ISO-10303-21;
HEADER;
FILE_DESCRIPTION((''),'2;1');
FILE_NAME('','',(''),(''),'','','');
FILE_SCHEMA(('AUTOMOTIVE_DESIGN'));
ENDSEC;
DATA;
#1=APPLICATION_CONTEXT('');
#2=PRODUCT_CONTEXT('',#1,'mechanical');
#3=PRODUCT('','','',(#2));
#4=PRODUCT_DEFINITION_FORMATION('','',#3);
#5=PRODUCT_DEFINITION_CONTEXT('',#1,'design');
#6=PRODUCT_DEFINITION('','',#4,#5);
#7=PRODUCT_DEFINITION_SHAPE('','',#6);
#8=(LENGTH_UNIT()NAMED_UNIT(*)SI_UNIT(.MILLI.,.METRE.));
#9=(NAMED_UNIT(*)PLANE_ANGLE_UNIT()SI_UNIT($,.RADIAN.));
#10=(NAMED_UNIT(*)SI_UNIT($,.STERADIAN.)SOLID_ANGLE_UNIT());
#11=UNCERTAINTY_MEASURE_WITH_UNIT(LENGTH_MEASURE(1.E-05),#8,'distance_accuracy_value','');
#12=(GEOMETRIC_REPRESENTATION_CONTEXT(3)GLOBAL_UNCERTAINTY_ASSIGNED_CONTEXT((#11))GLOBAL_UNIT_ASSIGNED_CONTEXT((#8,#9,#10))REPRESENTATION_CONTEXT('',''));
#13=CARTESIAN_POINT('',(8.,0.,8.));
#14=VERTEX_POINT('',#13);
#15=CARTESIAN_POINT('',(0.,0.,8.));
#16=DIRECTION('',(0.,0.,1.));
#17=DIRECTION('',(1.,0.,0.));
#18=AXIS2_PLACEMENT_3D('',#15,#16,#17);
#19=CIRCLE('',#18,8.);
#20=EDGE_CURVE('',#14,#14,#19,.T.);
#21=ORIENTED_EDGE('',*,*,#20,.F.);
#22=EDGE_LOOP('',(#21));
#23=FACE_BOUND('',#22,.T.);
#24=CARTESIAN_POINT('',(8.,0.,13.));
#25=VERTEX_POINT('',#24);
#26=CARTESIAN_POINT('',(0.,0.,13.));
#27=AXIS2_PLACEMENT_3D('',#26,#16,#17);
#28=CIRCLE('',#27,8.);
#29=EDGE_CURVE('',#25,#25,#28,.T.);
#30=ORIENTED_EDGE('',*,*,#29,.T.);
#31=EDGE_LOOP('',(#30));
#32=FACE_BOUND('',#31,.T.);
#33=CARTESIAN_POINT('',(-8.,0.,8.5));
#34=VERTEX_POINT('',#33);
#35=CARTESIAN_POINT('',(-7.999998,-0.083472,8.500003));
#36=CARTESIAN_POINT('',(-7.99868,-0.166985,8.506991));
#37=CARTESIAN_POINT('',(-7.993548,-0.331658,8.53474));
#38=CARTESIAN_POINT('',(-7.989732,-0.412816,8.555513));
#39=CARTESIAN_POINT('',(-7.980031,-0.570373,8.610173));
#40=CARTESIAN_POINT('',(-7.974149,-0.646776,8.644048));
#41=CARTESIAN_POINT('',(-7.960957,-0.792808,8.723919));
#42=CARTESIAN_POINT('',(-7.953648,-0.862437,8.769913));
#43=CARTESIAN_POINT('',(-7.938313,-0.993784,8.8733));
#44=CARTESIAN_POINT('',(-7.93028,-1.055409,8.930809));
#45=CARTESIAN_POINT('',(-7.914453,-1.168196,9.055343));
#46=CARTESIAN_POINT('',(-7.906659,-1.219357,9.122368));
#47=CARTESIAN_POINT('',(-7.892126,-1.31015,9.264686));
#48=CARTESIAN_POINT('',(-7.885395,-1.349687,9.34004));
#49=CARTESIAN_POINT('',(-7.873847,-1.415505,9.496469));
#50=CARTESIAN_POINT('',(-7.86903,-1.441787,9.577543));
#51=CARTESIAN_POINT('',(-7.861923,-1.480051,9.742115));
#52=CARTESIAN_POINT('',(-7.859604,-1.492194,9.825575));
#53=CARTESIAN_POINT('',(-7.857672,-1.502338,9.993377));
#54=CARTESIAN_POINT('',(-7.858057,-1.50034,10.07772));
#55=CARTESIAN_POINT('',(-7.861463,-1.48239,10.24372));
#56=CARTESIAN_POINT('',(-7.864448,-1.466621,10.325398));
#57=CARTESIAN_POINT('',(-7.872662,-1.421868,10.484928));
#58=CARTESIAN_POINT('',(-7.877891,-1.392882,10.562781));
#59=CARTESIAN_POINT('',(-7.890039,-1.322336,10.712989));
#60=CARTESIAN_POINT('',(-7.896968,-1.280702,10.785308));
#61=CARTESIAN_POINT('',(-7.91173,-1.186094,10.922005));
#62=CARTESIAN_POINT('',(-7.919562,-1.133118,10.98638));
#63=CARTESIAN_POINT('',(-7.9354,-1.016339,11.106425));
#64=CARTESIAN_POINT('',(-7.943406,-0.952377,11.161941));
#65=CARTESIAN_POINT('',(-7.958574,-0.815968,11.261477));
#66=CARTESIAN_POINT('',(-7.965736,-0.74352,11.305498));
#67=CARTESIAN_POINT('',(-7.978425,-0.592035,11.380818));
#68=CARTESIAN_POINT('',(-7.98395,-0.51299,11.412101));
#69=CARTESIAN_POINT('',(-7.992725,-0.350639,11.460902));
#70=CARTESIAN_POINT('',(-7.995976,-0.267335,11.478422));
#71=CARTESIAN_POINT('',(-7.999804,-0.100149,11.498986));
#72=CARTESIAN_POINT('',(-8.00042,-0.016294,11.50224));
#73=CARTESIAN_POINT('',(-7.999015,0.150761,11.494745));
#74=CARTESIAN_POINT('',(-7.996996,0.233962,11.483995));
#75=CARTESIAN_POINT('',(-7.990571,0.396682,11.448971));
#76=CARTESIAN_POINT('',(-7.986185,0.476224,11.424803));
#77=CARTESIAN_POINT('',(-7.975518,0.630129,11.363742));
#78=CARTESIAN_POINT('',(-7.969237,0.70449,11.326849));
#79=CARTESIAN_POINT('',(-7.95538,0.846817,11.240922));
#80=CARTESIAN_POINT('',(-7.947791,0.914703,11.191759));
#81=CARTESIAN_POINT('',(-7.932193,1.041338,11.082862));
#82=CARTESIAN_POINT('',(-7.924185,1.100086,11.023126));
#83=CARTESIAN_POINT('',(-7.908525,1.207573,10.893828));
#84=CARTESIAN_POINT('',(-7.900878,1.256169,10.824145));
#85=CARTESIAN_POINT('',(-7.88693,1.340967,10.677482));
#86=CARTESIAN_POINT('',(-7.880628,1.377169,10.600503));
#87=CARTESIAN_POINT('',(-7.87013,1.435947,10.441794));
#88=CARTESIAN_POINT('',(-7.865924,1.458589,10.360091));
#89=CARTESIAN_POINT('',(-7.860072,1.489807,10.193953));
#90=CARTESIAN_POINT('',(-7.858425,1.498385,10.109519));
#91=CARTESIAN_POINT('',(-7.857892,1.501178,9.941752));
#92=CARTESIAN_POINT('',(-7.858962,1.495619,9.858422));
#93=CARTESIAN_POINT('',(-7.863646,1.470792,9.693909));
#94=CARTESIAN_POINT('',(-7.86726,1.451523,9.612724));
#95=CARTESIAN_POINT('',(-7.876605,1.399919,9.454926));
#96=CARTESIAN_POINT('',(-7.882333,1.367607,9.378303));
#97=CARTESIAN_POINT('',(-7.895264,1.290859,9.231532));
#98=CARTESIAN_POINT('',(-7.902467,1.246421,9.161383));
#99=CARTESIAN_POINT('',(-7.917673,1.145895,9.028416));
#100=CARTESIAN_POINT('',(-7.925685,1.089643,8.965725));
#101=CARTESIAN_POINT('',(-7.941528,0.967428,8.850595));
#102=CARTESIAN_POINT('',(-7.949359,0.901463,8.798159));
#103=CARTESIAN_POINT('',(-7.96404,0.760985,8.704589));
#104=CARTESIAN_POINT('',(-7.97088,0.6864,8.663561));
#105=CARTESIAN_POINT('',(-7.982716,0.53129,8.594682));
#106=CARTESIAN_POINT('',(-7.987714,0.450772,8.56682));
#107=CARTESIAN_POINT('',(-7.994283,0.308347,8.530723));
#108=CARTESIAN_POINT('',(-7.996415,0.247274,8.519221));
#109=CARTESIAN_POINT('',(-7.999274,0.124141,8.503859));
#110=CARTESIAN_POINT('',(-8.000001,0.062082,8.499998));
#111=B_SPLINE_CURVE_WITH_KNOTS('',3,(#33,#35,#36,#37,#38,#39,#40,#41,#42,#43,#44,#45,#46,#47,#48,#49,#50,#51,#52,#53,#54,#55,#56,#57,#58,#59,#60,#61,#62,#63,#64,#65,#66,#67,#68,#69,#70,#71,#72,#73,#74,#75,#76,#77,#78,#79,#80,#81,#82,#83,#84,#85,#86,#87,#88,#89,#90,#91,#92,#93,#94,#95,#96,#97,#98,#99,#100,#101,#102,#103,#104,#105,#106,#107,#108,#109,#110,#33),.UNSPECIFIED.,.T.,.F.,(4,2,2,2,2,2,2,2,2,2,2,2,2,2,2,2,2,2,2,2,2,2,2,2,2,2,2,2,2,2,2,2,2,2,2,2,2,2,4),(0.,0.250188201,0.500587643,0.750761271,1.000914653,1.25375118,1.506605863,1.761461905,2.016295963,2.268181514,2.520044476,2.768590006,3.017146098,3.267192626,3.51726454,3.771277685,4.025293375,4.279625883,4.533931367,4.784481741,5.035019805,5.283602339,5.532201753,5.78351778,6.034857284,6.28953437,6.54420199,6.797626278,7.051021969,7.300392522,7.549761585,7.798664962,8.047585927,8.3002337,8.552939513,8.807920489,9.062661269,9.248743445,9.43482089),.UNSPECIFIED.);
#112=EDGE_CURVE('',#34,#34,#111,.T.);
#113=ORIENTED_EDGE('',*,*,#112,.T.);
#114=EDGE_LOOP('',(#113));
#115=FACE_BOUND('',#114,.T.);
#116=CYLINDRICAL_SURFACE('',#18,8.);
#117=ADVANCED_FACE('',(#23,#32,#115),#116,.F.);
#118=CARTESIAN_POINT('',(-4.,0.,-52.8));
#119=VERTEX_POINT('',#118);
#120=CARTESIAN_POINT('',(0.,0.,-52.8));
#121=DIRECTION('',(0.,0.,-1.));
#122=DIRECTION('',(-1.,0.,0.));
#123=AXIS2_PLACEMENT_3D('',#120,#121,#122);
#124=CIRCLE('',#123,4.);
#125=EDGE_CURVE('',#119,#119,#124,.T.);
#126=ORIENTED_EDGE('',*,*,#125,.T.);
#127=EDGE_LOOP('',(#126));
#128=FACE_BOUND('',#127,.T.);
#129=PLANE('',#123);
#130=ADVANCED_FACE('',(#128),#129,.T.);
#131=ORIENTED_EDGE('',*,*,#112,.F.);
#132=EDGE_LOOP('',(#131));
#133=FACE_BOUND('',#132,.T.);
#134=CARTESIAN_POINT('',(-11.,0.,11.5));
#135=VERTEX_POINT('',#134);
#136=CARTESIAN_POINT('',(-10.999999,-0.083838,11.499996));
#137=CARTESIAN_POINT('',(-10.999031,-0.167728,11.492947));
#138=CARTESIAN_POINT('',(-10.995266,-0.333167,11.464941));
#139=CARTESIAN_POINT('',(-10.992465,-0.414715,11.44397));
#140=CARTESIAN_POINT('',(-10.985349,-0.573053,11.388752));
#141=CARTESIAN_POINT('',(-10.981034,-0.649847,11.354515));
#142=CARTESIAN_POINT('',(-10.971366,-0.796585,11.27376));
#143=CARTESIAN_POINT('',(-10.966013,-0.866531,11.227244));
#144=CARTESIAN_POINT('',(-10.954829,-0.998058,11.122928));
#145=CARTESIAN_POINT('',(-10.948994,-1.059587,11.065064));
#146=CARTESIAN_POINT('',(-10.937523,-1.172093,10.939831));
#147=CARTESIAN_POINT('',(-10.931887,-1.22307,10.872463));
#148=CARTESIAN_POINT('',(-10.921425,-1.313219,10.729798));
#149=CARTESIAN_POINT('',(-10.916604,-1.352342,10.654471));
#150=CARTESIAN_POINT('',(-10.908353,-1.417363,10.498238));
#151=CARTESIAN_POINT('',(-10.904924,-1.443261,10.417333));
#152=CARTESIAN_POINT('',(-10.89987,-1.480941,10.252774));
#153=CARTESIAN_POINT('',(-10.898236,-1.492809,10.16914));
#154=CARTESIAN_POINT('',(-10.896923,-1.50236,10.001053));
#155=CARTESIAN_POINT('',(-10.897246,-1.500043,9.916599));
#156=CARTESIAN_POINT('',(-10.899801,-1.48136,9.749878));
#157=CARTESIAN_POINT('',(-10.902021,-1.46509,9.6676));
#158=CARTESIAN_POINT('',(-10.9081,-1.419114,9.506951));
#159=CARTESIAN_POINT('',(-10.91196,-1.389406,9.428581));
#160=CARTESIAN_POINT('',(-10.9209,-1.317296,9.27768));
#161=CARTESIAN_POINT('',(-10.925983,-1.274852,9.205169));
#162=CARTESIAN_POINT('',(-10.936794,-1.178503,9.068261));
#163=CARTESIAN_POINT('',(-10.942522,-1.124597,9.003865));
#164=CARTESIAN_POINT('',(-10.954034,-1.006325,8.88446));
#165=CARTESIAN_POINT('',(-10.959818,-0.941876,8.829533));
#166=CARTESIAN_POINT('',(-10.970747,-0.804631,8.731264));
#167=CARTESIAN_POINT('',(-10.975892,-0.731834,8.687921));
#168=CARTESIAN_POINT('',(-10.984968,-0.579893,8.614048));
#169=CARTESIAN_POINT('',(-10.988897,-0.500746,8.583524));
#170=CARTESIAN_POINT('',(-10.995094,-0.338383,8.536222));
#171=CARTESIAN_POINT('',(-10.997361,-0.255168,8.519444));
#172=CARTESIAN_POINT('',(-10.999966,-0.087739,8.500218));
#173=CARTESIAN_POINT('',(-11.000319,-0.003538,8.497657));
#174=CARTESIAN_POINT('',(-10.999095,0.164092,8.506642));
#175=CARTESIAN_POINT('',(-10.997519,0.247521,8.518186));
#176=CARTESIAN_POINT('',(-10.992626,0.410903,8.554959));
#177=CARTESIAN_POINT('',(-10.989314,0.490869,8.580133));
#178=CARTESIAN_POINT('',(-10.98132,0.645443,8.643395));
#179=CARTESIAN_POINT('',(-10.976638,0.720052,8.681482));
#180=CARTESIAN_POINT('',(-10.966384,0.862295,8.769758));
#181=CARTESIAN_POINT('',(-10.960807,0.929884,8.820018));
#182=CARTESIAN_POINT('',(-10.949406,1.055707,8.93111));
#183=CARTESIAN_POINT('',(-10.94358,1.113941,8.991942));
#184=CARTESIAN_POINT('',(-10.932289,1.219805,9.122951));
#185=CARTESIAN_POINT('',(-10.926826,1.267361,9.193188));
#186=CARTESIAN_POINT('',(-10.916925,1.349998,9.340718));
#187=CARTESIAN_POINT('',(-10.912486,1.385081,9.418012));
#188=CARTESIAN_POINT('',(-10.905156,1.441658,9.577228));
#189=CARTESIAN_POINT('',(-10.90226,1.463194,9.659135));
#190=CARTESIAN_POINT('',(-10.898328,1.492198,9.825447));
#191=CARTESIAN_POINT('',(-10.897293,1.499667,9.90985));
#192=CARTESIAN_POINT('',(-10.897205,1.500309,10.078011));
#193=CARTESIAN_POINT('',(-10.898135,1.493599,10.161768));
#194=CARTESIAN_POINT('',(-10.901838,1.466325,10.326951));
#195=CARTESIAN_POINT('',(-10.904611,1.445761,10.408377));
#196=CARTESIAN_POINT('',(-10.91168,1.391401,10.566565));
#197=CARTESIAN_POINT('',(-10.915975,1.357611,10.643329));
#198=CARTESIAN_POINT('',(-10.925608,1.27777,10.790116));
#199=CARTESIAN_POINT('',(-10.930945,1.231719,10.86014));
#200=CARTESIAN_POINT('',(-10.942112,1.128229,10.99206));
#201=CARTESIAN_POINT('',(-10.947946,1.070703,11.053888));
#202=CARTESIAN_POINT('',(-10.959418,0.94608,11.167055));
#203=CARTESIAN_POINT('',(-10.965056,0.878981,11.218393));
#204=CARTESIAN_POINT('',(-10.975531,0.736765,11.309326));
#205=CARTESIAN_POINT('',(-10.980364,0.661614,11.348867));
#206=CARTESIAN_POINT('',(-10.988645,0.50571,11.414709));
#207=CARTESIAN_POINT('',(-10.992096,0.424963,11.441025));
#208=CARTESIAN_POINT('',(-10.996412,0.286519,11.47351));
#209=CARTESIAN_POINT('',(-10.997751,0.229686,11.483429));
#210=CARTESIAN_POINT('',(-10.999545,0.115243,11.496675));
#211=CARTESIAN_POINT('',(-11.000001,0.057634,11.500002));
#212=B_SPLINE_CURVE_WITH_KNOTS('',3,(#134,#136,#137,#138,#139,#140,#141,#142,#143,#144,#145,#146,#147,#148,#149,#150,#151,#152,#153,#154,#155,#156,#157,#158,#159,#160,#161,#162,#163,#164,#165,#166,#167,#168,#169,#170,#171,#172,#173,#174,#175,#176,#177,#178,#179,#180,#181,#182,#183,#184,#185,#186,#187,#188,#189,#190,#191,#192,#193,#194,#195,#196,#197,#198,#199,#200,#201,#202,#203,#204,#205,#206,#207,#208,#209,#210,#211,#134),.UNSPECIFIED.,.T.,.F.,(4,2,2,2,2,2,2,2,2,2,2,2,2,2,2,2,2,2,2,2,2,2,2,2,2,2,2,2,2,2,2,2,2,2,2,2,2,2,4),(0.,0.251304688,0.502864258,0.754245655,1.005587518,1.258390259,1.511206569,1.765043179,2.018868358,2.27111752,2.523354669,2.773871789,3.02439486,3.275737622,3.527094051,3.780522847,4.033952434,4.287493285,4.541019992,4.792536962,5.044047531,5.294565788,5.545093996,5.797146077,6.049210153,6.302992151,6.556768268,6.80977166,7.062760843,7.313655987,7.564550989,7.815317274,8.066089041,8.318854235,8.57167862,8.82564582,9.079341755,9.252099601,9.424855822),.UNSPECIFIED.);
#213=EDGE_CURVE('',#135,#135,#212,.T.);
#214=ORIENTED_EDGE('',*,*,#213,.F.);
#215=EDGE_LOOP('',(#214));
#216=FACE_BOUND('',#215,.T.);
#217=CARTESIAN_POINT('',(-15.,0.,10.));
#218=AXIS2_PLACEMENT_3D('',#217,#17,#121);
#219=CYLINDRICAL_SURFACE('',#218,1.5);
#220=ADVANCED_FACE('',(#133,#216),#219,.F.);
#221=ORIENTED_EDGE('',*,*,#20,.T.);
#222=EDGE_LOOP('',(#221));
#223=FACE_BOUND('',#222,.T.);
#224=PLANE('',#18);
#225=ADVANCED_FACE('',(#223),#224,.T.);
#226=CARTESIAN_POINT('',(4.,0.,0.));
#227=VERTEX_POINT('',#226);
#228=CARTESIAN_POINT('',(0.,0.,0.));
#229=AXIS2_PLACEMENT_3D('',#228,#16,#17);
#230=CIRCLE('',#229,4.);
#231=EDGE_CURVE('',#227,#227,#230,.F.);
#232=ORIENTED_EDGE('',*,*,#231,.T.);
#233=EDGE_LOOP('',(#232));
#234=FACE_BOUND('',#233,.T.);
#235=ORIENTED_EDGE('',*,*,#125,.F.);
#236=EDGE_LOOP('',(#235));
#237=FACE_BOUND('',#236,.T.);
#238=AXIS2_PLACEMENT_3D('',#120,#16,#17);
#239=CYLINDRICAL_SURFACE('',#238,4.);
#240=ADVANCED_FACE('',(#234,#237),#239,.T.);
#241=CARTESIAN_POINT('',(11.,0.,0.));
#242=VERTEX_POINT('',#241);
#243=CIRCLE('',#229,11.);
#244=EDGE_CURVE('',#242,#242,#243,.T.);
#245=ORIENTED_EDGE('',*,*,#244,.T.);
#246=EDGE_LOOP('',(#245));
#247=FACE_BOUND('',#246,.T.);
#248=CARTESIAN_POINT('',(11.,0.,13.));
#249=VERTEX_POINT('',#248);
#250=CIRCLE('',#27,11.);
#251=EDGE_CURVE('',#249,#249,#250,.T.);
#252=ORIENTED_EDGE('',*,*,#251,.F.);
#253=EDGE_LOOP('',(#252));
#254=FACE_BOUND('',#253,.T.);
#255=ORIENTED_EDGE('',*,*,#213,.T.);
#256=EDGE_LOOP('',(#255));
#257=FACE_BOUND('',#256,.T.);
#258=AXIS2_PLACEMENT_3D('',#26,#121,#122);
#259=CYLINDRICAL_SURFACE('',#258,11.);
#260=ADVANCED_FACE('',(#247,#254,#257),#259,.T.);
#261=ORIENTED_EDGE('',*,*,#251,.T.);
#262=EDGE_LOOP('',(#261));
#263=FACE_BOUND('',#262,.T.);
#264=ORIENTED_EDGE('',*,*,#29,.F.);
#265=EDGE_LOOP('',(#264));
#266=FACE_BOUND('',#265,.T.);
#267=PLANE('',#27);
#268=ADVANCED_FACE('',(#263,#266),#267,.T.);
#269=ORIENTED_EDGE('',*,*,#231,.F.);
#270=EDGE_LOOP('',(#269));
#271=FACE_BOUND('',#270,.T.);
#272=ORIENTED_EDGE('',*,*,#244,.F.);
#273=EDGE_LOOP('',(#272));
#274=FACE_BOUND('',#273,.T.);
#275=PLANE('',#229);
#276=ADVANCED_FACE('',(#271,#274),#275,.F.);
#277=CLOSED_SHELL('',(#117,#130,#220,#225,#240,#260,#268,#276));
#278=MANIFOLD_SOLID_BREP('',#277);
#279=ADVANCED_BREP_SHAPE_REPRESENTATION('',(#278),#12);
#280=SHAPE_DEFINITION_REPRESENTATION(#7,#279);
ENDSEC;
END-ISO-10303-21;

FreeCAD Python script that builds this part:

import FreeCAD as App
import Part
import Sketcher
from FreeCAD import Vector
Q = App.Units.Quantity

doc = App.newDocument("Part")
params = doc.addObject("Spreadsheet::Sheet", "Params")
for row, (alias, value) in enumerate([
    ("sketch1_diameter", "22 mm"),
    ("pad1_length", "13 mm"),
    ("sketch2_diameter", "16 mm"),
    ("pocket1_length", "5 mm"),
    ("sketch3_diameter", "3 mm"),
    ("pocket2_length", "15 mm"),
    ("sketch4_diameter", "8 mm"),
    ("pad2_length", "52.8 mm"),
], start=1):
    params.set(f"A{row}", alias)
    params.set(f"B{row}", "=" + value)
    params.setAlias(f"B{row}", alias)

body = doc.addObject("PartDesign::Body", "Body")

# Sketch on XY plane
sketch1 = body.newObject("Sketcher::SketchObject", "Sketch")
sketch1.AttachmentSupport = (doc.getObject("XY_Plane"), [""])
sketch1.MapMode = "FlatFace"
sketch1.addGeometry(Part.Circle(Vector(0, 0, 0), Vector(0, 0, 1), 11), False)
sketch1.addConstraint(Sketcher.Constraint("Coincident", 0, 3, -1, 1))
sketch1.addConstraint(Sketcher.Constraint("Diameter", 0, Q("22 mm")))
sketch1.setExpression("Constraints[1]", "Params.sketch1_diameter")
pad1 = body.newObject("PartDesign::Pad", "Pad")
pad1.Profile = sketch1
pad1.setExpression("Length", "Params.pad1_length")

# Sketch on XY plane
sketch2 = body.newObject("Sketcher::SketchObject", "Sketch001")
sketch2.AttachmentSupport = (doc.getObject("XY_Plane"), [""])
sketch2.MapMode = "FlatFace"
sketch2.AttachmentOffset = App.Placement(Vector(0, 0, 13), App.Rotation())
sketch2.addGeometry(Part.Circle(Vector(0, 0, 0), Vector(0, 0, 1), 8), False)
sketch2.addConstraint(Sketcher.Constraint("Coincident", 0, 3, -1, 1))
sketch2.addConstraint(Sketcher.Constraint("Diameter", 0, Q("16 mm")))
sketch2.setExpression("Constraints[1]", "Params.sketch2_diameter")
pocket1 = body.newObject("PartDesign::Pocket", "Pocket")
pocket1.Profile = sketch2
pocket1.setExpression("Length", "Params.pocket1_length")

# Sketch on YZ plane
sketch3 = body.newObject("Sketcher::SketchObject", "Sketch002")
sketch3.AttachmentSupport = (doc.getObject("YZ_Plane"), [""])
sketch3.MapMode = "FlatFace"
sketch3.addGeometry(Part.Circle(Vector(0, 10, 0), Vector(0, 0, 1), 1.5), False)
sketch3.addConstraint(Sketcher.Constraint("PointOnObject", 0, 3, -2))
sketch3.addConstraint(Sketcher.Constraint("Diameter", 0, Q("3 mm")))
sketch3.addConstraint(Sketcher.Constraint("DistanceY", -1, 1, 0, 3, Q("10 mm")))
sketch3.setExpression("Constraints[1]", "Params.sketch3_diameter")
pocket2 = body.newObject("PartDesign::Pocket", "Pocket001")
pocket2.Profile = sketch3
pocket2.setExpression("Length", "Params.pocket2_length")

# Sketch on XY plane
sketch4 = body.newObject("Sketcher::SketchObject", "Sketch003")
sketch4.AttachmentSupport = (doc.getObject("XY_Plane"), [""])
sketch4.MapMode = "FlatFace"
sketch4.addGeometry(Part.Circle(Vector(0, 0, 0), Vector(0, 0, 1), 4), False)
sketch4.addConstraint(Sketcher.Constraint("Coincident", 0, 3, -1, 1))
sketch4.addConstraint(Sketcher.Constraint("Diameter", 0, Q("8 mm")))
sketch4.setExpression("Constraints[1]", "Params.sketch4_diameter")
pad2 = body.newObject("PartDesign::Pad", "Pad001")
pad2.Profile = sketch4
pad2.setExpression("Length", "Params.pad2_length")
pad2.Reversed = True

doc.recompute()
